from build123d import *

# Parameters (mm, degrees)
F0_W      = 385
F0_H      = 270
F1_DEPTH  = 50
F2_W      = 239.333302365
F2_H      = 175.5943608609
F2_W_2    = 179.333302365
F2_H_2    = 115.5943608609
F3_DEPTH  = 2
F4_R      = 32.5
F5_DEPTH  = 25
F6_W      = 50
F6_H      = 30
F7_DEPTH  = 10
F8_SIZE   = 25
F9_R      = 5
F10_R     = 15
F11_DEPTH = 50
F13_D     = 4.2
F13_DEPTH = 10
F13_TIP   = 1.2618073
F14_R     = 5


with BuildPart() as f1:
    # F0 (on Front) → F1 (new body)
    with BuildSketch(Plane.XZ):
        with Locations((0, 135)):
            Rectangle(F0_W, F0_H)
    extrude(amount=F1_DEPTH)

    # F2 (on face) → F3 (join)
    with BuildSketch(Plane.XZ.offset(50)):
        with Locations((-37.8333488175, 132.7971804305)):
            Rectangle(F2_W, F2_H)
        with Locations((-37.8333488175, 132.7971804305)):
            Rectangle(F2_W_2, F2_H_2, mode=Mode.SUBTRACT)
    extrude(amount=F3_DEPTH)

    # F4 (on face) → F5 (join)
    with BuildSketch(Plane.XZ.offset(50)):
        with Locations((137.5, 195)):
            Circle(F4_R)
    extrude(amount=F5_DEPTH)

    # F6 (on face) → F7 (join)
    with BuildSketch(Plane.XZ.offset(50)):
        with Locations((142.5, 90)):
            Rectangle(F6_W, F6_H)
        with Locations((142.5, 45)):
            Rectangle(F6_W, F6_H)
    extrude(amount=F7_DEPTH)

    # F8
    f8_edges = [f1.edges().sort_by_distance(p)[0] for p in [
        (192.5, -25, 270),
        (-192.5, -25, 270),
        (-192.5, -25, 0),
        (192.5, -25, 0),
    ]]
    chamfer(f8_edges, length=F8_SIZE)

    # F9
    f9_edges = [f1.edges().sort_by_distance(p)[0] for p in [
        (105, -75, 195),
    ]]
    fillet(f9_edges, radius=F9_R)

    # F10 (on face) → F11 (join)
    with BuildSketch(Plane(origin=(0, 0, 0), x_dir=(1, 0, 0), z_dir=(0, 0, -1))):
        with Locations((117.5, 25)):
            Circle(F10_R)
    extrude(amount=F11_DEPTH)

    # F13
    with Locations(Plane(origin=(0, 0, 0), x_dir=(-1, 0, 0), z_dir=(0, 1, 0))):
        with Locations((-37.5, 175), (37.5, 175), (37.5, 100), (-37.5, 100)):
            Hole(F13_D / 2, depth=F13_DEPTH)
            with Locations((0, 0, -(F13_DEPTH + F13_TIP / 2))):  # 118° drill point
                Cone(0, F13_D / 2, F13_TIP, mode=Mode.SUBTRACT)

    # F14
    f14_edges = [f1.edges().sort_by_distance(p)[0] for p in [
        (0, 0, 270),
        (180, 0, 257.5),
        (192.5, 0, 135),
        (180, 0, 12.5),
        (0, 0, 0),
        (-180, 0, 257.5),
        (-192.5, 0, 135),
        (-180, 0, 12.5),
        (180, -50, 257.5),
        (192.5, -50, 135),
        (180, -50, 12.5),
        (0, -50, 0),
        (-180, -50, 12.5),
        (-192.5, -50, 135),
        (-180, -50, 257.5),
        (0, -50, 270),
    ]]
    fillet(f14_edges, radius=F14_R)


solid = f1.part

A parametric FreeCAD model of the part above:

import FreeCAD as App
import Part
import Sketcher

V = App.Vector
Q = App.Units.Quantity


def edges_at(feature, points):
    """Names of the edges that pass closest to the given points."""
    edges = feature.Shape.Edges
    near = lambda p: min(range(len(edges)), key=lambda i: edges[i].distToShape(Part.Vertex(*p))[0])
    return sorted({f"Edge{near(p) + 1}" for p in points})


def add_polygon(sketch, points):
    """Adds a closed chain of lines whose ends are joined by coincident constraints."""
    first, n = sketch.GeometryCount, len(points)
    for a, b in zip(points, points[1:] + points[:1]):
        sketch.addGeometry(Part.LineSegment(App.Vector(*a, 0), App.Vector(*b, 0)), False)
    for i in range(n):
        sketch.addConstraint(Sketcher.Constraint("Coincident", first + i, 2, first + (i + 1) % n, 1))

doc = App.newDocument("Part")
body = doc.addObject("PartDesign::Body", "Body")

sketch1 = body.newObject("Sketcher::SketchObject", "Sketch")
sketch1.AttachmentSupport = (doc.getObject("XZ_Plane"), [""])
sketch1.MapMode = "FlatFace"
add_polygon(sketch1, [(-192, 270), (-192, 0), (192, 0), (192, 270)])
sketch1.addConstraint(Sketcher.Constraint("Vertical", 0))
sketch1.addConstraint(Sketcher.Constraint("Horizontal", 1))
sketch1.addConstraint(Sketcher.Constraint("Vertical", 2))
sketch1.addConstraint(Sketcher.Constraint("Horizontal", 3))
sketch1.addConstraint(Sketcher.Constraint("Symmetric", 0, 2, 1, 2, -1, 1))
sketch1.addConstraint(Sketcher.Constraint("DistanceX", 1, 1, 1, 2, Q("385 mm")))
sketch1.addConstraint(Sketcher.Constraint("DistanceY", 0, 2, 0, 1, Q("270 mm")))
pad1 = body.newObject("PartDesign::Pad", "Pad")
pad1.Profile = sketch1
pad1.Length = 50

sketch2 = body.newObject("Sketcher::SketchObject", "Sketch001")
sketch2.AttachmentSupport = (doc.getObject("XZ_Plane"), [""])
sketch2.MapMode = "FlatFace"
sketch2.AttachmentOffset = App.Placement(V(0, 0, 50), App.Rotation())
add_polygon(sketch2, [(-158, 221), (-158, 45), (82, 45), (82, 221)])
add_polygon(sketch2, [(52, 75), (-128, 75), (-128, 191), (52, 191)])
sketch2.addConstraint(Sketcher.Constraint("Vertical", 0))
sketch2.addConstraint(Sketcher.Constraint("Horizontal", 1))
sketch2.addConstraint(Sketcher.Constraint("Vertical", 2))
sketch2.addConstraint(Sketcher.Constraint("Horizontal", 3))
sketch2.addConstraint(Sketcher.Constraint("Horizontal", 4))
sketch2.addConstraint(Sketcher.Constraint("Vertical", 5))
sketch2.addConstraint(Sketcher.Constraint("Horizontal", 6))
sketch2.addConstraint(Sketcher.Constraint("Vertical", 7))
sketch2.addConstraint(Sketcher.Constraint("DistanceY", -1, 1, 0, 2, Q("45 mm")))
sketch2.addConstraint(Sketcher.Constraint("DistanceY", -1, 1, 4, 2, Q("75 mm")))
sketch2.addConstraint(Sketcher.Constraint("DistanceX", 0, 2, 4, 2, Q("30 mm")))
sketch2.addConstraint(Sketcher.Constraint("DistanceY", 5, 2, 3, 2, Q("30 mm")))
sketch2.addConstraint(Sketcher.Constraint("DistanceX", 6, 2, 2, 2, Q("30 mm")))
sketch2.addConstraint(Sketcher.Constraint("DistanceX", 0, 2, -1, 1, Q("157.5 mm")))
sketch2.addConstraint(Sketcher.Constraint("DistanceY", 0, 2, 0, 1, Q("175.594361 mm")))
sketch2.addConstraint(Sketcher.Constraint("DistanceX", 1, 1, 1, 2, Q("239.333302 mm")))
pad2 = body.newObject("PartDesign::Pad", "Pad001")
pad2.Profile = sketch2
pad2.Length = 2

sketch3 = body.newObject("Sketcher::SketchObject", "Sketch002")
sketch3.AttachmentSupport = (doc.getObject("XZ_Plane"), [""])
sketch3.MapMode = "FlatFace"
sketch3.AttachmentOffset = App.Placement(V(0, 0, 50), App.Rotation())
sketch3.addGeometry(Part.Circle(V(138, 195, 0), V(0, 0, 1), 32), False)
sketch3.addConstraint(Sketcher.Constraint("Diameter", 0, Q("65 mm")))
sketch3.addConstraint(Sketcher.Constraint("DistanceY", -1, 1, 0, 3, Q("195 mm")))
sketch3.addConstraint(Sketcher.Constraint("DistanceX", -1, 1, 0, 3, Q("137.5 mm")))
pad3 = body.newObject("PartDesign::Pad", "Pad002")
pad3.Profile = sketch3
pad3.Length = 25

sketch4 = body.newObject("Sketcher::SketchObject", "Sketch003")
sketch4.AttachmentSupport = (doc.getObject("XZ_Plane"), [""])
sketch4.MapMode = "FlatFace"
sketch4.AttachmentOffset = App.Placement(V(0, 0, 50), App.Rotation())
add_polygon(sketch4, [(118, 105), (118, 75), (168, 75), (168, 105)])
add_polygon(sketch4, [(118, 60), (118, 30), (168, 30), (168, 60)])
sketch4.addConstraint(Sketcher.Constraint("Vertical", 0))
sketch4.addConstraint(Sketcher.Constraint("Horizontal", 1))
sketch4.addConstraint(Sketcher.Constraint("Vertical", 2))
sketch4.addConstraint(Sketcher.Constraint("Horizontal", 3))
sketch4.addConstraint(Sketcher.Constraint("Vertical", 4))
sketch4.addConstraint(Sketcher.Constraint("Horizontal", 5))
sketch4.addConstraint(Sketcher.Constraint("Vertical", 6))
sketch4.addConstraint(Sketcher.Constraint("Horizontal", 7))
sketch4.addConstraint(Sketcher.Constraint("Vertical", 3, 2, 4, 2))
sketch4.addConstraint(Sketcher.Constraint("Vertical", 2, 2, 5, 2))
sketch4.addConstraint(Sketcher.Constraint("Equal", 2, 4))
sketch4.addConstraint(Sketcher.Constraint("DistanceX", 1, 1, 1, 2, Q("50 mm")))
sketch4.addConstraint(Sketcher.Constraint("DistanceY", 0, 2, 0, 1, Q("30 mm")))
sketch4.addConstraint(Sketcher.Constraint("DistanceY", -1, 1, 0, 2, Q("75 mm")))
sketch4.addConstraint(Sketcher.Constraint("DistanceY", -1, 1, 4, 2, Q("30 mm")))
sketch4.addConstraint(Sketcher.Constraint("DistanceX", -1, 1, 0, 2, Q("117.5 mm")))
pad4 = body.newObject("PartDesign::Pad", "Pad003")
pad4.Profile = sketch4
pad4.Length = 10
doc.recompute()

chamfer = body.newObject("PartDesign::Chamfer", "Chamfer")
chamfer.Base = (pad4, edges_at(pad4, [
    (192.5, -25, 270),
    (-192.5, -25, 270),
    (-192.5, -25, 0),
    (192.5, -25, 0),
]))
chamfer.Size = 25
doc.recompute()

fillet = body.newObject("PartDesign::Fillet", "Fillet")
fillet.Base = (chamfer, edges_at(chamfer, [(105, -75, 195)]))
fillet.Radius = 5

sketch5 = body.newObject("Sketcher::SketchObject", "Sketch004")
sketch5.AttachmentSupport = (doc.getObject("XY_Plane"), [""])
sketch5.MapMode = "FlatFace"
sketch5.addGeometry(Part.Circle(V(118, -25, 0), V(0, 0, 1), 15), False)
sketch5.addConstraint(Sketcher.Constraint("Diameter", 0, Q("30 mm")))
sketch5.addConstraint(Sketcher.Constraint("DistanceY", 0, 3, -1, 1, Q("25 mm")))
sketch5.addConstraint(Sketcher.Constraint("DistanceX", -1, 1, 0, 3, Q("117.5 mm")))
pad5 = body.newObject("PartDesign::Pad", "Pad004")
pad5.Profile = sketch5
pad5.Length = 50
pad5.Reversed = True

sketch6 = body.newObject("Sketcher::SketchObject", "Sketch005")
sketch6.AttachmentSupport = (doc.getObject("XZ_Plane"), [""])
sketch6.MapMode = "FlatFace"
sketch6.addGeometry(Part.Circle(V(37.5, 175, 0), V(0, 0, 1), 2.1), False)
sketch6.addGeometry(Part.Circle(V(-37.5, 175, 0), V(0, 0, 1), 2.1), False)
sketch6.addGeometry(Part.Circle(V(-37.5, 100, 0), V(0, 0, 1), 2.1), False)
sketch6.addGeometry(Part.Circle(V(37.5, 100, 0), V(0, 0, 1), 2.1), False)
sketch6.addConstraint(Sketcher.Constraint("Equal", 0, 1))
sketch6.addConstraint(Sketcher.Constraint("Equal", 1, 2))
sketch6.addConstraint(Sketcher.Constraint("Equal", 2, 3))
sketch6.addConstraint(Sketcher.Constraint("Symmetric", 0, 3, 1, 3, -2))
sketch6.addConstraint(Sketcher.Constraint("Symmetric", 2, 3, 3, 3, -2))
sketch6.addConstraint(Sketcher.Constraint("Vertical", 1, 3, 2, 3))
sketch6.addConstraint(Sketcher.Constraint("Diameter", 0, Q("4.2 mm")))
sketch6.addConstraint(Sketcher.Constraint("DistanceY", -1, 1, 0, 3, Q("175 mm")))
sketch6.addConstraint(Sketcher.Constraint("DistanceY", -1, 1, 2, 3, Q("100 mm")))
sketch6.addConstraint(Sketcher.Constraint("DistanceX", 1, 3, 0, 3, Q("75 mm")))
doc.recompute()
hole = body.newObject("PartDesign::Hole", "Hole")
hole.Profile = sketch6
hole.ThreadType = "None"
hole.Diameter = 4.2
hole.DepthType = "Dimension"
hole.Depth = 10
hole.DrillPoint = "Angled"
hole.DrillPointAngle = 118
hole.Reversed = True
doc.recompute()

fillet2 = body.newObject("PartDesign::Fillet", "Fillet001")
fillet2.Base = (hole, edges_at(hole, [
    (0, 0, 270),
    (180, 0, 257.5),
    (192.5, 0, 135),
    (180, 0, 12.5),
    (0, 0, 0),
    (-180, 0, 257.5),
    (-192.5, 0, 135),
    (-180, 0, 12.5),
    (180, -50, 257.5),
    (192.5, -50, 135),
    (180, -50, 12.5),
    (0, -50, 0),
    (-180, -50, 12.5),
    (-192.5, -50, 135),
    (-180, -50, 257.5),
    (0, -50, 270),
]))
fillet2.Radius = 5

doc.recompute()
